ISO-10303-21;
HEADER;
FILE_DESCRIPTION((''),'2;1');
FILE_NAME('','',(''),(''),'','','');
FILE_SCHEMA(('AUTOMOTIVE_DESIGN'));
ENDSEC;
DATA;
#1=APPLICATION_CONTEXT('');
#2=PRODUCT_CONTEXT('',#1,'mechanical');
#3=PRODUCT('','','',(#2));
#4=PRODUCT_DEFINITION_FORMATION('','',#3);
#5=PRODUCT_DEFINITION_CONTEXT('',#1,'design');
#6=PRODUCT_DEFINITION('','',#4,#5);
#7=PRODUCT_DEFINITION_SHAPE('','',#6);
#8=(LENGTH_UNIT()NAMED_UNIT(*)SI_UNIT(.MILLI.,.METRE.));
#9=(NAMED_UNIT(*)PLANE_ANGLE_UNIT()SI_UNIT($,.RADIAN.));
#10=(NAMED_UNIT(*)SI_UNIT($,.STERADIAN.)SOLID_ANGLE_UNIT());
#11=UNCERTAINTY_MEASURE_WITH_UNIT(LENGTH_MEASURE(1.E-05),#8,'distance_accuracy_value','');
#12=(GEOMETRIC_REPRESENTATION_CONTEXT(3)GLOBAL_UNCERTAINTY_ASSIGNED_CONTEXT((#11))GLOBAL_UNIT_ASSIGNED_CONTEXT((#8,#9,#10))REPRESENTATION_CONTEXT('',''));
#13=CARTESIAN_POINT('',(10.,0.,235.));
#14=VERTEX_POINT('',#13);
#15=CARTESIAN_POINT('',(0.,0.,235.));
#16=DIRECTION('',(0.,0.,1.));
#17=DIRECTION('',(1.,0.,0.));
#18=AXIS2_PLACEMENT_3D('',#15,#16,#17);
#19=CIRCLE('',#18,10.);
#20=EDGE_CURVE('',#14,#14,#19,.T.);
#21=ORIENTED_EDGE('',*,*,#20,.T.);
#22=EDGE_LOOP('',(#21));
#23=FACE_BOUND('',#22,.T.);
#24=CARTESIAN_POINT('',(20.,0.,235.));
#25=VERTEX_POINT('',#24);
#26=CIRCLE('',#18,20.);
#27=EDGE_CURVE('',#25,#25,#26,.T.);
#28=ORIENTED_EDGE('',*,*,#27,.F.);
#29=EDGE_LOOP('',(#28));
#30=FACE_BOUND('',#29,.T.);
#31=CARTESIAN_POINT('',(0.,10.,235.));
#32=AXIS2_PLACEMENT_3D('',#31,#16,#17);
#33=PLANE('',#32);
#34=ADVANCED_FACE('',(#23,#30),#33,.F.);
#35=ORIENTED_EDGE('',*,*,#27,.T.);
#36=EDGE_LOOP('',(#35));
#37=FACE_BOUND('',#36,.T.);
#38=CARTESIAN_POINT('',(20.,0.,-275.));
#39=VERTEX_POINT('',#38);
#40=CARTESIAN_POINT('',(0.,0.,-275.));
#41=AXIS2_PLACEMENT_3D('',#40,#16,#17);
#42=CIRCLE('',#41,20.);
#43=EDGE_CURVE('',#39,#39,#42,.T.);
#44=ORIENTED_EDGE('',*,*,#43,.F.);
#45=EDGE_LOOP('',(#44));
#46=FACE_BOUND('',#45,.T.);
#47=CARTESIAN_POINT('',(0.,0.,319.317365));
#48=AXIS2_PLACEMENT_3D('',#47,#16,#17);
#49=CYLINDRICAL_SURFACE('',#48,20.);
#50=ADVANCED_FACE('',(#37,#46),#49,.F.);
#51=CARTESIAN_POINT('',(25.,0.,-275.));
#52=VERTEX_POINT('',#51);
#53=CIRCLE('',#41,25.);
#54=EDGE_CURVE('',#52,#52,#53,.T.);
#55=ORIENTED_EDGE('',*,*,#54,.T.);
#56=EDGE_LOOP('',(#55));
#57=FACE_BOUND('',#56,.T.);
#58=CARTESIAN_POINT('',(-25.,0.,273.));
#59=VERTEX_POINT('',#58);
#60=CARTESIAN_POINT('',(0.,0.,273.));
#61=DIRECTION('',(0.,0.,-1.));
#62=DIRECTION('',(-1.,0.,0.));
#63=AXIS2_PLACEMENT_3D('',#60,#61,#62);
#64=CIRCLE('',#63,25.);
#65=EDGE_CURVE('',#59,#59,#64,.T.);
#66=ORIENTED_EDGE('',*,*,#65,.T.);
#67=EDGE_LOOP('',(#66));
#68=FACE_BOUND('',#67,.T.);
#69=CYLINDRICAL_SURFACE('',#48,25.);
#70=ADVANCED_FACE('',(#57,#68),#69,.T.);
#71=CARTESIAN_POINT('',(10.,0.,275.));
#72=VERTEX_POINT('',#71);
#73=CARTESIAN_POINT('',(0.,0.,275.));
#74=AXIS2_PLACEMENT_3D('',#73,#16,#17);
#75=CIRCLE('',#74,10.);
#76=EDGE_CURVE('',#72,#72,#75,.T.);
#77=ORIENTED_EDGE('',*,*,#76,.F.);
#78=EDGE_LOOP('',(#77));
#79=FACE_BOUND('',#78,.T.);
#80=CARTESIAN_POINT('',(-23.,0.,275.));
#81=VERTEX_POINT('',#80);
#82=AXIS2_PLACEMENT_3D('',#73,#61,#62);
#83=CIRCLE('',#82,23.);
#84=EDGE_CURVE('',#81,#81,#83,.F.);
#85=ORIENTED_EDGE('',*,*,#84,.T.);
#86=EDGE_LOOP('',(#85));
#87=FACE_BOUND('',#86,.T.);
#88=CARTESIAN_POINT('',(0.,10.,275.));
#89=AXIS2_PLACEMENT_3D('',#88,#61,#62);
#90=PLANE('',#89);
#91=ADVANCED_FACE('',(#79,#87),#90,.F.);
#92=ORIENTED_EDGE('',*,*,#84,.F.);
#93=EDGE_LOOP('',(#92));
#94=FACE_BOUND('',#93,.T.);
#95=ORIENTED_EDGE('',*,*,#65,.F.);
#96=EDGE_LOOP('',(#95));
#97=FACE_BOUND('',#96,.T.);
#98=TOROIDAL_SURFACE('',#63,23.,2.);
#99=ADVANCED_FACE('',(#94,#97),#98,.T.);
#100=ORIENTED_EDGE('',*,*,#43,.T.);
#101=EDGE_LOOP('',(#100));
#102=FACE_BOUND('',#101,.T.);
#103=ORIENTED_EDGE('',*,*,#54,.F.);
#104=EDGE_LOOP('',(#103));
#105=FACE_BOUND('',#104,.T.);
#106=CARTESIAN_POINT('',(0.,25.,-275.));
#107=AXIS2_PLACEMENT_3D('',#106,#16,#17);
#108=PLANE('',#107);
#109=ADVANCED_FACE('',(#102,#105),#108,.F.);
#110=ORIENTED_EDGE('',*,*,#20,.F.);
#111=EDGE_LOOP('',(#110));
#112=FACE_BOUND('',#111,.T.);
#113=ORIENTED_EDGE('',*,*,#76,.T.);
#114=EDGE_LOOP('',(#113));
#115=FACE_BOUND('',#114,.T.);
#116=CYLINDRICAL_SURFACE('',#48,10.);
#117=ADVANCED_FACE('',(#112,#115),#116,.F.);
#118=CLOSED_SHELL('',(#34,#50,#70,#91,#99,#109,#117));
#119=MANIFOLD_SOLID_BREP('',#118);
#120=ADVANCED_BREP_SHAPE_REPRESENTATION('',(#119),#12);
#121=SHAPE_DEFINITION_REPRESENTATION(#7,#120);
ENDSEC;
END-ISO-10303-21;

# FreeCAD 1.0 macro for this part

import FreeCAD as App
import Part
import Sketcher
from FreeCAD import Vector
Q = App.Units.Quantity


def edges_at(feature, points):
    """Names of the edges that pass closest to the given points."""
    edges = feature.Shape.Edges
    near = lambda p: min(range(len(edges)), key=lambda i: edges[i].distToShape(Part.Vertex(*p))[0])
    return sorted({f"Edge{near(p) + 1}" for p in points})


def add_polygon(sketch, points):
    """Adds a closed chain of lines whose ends are joined by coincident constraints."""
    first, n = sketch.GeometryCount, len(points)
    for a, b in zip(points, points[1:] + points[:1]):
        sketch.addGeometry(Part.LineSegment(App.Vector(*a, 0), App.Vector(*b, 0)), False)
    for i in range(n):
        sketch.addConstraint(Sketcher.Constraint("Coincident", first + i, 2, first + (i + 1) % n, 1))

doc = App.newDocument("Part")
body = doc.addObject("PartDesign::Body", "Body")

# Sketch on YZ plane
sketch1 = body.newObject("Sketcher::SketchObject", "Sketch")
sketch1.AttachmentSupport = (doc.getObject("YZ_Plane"), [""])
sketch1.MapMode = "FlatFace"
add_polygon(sketch1, [(25, 275), (10, 275), (10, 235), (20, 235), (20, -275), (25, -275)])  # lines 0-5
sketch1.addConstraint(Sketcher.Constraint("Horizontal", 0))
sketch1.addConstraint(Sketcher.Constraint("Vertical", 1))
sketch1.addConstraint(Sketcher.Constraint("Horizontal", 2))
sketch1.addConstraint(Sketcher.Constraint("Vertical", 3))
sketch1.addConstraint(Sketcher.Constraint("Horizontal", 4))
sketch1.addConstraint(Sketcher.Constraint("Vertical", 5))
sketch1.addConstraint(Sketcher.Constraint("DistanceX", 0, 2, 0, 1, Q("15 mm")))
sketch1.addConstraint(Sketcher.Constraint("DistanceX", 2, 1, 2, 2, Q("10 mm")))
sketch1.addConstraint(Sketcher.Constraint("DistanceY", 1, 2, 1, 1, Q("40 mm")))
sketch1.addConstraint(Sketcher.Constraint("DistanceY", 3, 2, 3, 1, Q("510 mm")))
sketch1.addConstraint(Sketcher.Constraint("DistanceX", -1, 1, 0, 2, Q("10 mm")))
sketch1.addConstraint(Sketcher.Constraint("DistanceY", -1, 1, 0, 2, Q("275 mm")))
revolution = body.newObject("PartDesign::Revolution", "Revolution")
revolution.Profile = sketch1
revolution.ReferenceAxis = (sketch1, ["V_Axis"])
revolution.Angle = 360
doc.recompute()

fillet = body.newObject("PartDesign::Fillet", "Fillet")
fillet.Base = (revolution, edges_at(revolution, [(-25, 0, 275)]))
fillet.Radius = 2

doc.recompute()
